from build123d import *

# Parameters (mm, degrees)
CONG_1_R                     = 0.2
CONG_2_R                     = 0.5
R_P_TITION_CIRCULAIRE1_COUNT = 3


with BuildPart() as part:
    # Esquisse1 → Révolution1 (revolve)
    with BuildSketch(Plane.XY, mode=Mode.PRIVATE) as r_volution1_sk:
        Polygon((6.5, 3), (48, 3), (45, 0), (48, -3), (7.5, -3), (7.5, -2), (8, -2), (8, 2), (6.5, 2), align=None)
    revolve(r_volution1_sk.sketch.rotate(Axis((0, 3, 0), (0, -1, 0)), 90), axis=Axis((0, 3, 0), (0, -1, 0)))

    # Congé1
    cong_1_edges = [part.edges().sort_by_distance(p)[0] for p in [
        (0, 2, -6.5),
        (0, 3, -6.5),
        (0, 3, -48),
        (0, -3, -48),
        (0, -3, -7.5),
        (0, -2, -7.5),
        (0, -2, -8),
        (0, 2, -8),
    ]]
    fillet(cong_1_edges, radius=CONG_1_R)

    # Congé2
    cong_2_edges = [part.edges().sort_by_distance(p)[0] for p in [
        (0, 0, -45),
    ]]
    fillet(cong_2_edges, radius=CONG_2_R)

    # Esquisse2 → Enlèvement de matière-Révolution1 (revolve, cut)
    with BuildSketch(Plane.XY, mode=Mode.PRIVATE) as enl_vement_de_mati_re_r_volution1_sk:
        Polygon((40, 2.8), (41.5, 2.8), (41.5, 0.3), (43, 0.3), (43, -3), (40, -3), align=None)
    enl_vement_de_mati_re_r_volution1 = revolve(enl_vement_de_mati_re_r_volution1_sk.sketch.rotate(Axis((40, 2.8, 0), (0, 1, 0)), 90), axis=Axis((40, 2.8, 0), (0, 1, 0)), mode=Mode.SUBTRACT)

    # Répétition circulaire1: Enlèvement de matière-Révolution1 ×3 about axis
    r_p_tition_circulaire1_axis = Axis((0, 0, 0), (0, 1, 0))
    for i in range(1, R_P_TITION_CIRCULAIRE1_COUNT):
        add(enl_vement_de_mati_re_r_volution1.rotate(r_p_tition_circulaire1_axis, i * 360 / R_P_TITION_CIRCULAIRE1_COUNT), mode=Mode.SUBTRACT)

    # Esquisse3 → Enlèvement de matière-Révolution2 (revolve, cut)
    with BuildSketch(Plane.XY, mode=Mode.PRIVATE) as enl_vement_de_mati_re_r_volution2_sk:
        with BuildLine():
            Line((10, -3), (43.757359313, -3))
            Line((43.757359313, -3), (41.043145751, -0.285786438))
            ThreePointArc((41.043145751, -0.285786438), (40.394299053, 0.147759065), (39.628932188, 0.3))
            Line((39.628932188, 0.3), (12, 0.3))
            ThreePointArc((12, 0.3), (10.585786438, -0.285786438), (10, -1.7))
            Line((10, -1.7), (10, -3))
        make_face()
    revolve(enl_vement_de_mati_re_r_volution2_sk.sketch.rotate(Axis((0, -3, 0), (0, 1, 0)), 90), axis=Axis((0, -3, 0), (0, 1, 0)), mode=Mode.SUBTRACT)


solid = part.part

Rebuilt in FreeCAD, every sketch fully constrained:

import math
import FreeCAD as App
import Part
import Sketcher
Q = App.Units.Quantity


def edges_at(feature, points):
    """Names of the edges that pass closest to the given points."""
    edges = feature.Shape.Edges
    near = lambda p: min(range(len(edges)), key=lambda i: edges[i].distToShape(Part.Vertex(*p))[0])
    return sorted({f"Edge{near(p) + 1}" for p in points})

doc = App.newDocument("Part")
body = doc.addObject("PartDesign::Body", "Body")

# Sketch on XY plane
sketch1 = doc.addObject("Sketcher::SketchObject", "Sketch")
body.addObject(sketch1)
sketch1.AttachmentSupport = (doc.XY_Plane, [""])
sketch1.MapMode = "FlatFace"
sketch1.addGeometry(Part.LineSegment(App.Vector(48, 3, 0), App.Vector(6.5, 3, 0)), False)
sketch1.addGeometry(Part.LineSegment(App.Vector(6.5, 3, 0), App.Vector(6.5, 2, 0)), False)
sketch1.addGeometry(Part.LineSegment(App.Vector(6.5, 2, 0), App.Vector(8, 2, 0)), False)
sketch1.addGeometry(Part.LineSegment(App.Vector(8, 2, 0), App.Vector(8, -2, 0)), False)
sketch1.addGeometry(Part.LineSegment(App.Vector(8, -2, 0), App.Vector(7.5, -2, 0)), False)
sketch1.addGeometry(Part.LineSegment(App.Vector(7.5, -2, 0), App.Vector(7.5, -3, 0)), False)
sketch1.addGeometry(Part.LineSegment(App.Vector(7.5, -3, 0), App.Vector(48, -3, 0)), False)
sketch1.addGeometry(Part.LineSegment(App.Vector(48, -3, 0), App.Vector(45, 0, 0)), False)
sketch1.addGeometry(Part.LineSegment(App.Vector(45, 0, 0), App.Vector(48, 3, 0)), False)
sketch1.addConstraint(Sketcher.Constraint("Coincident", 0, 2, 1, 1))
sketch1.addConstraint(Sketcher.Constraint("Coincident", 1, 2, 2, 1))
sketch1.addConstraint(Sketcher.Constraint("Coincident", 2, 2, 3, 1))
sketch1.addConstraint(Sketcher.Constraint("Coincident", 3, 2, 4, 1))
sketch1.addConstraint(Sketcher.Constraint("Coincident", 4, 2, 5, 1))
sketch1.addConstraint(Sketcher.Constraint("Coincident", 5, 2, 6, 1))
sketch1.addConstraint(Sketcher.Constraint("Coincident", 6, 2, 7, 1))
sketch1.addConstraint(Sketcher.Constraint("Coincident", 7, 2, 8, 1))
sketch1.addConstraint(Sketcher.Constraint("Coincident", 8, 2, 0, 1))
sketch1.addConstraint(Sketcher.Constraint("Horizontal", 0))
sketch1.addConstraint(Sketcher.Constraint("Vertical", 1))
sketch1.addConstraint(Sketcher.Constraint("Horizontal", 2))
sketch1.addConstraint(Sketcher.Constraint("Vertical", 3))
sketch1.addConstraint(Sketcher.Constraint("Horizontal", 4))
sketch1.addConstraint(Sketcher.Constraint("Vertical", 5))
sketch1.addConstraint(Sketcher.Constraint("Horizontal", 6))
sketch1.addConstraint(Sketcher.Constraint("Symmetric", 6, 2, 8, 2, -1))
sketch1.addConstraint(Sketcher.Constraint("PointOnObject", 7, 2, -1))
sketch1.addConstraint(Sketcher.Constraint("Perpendicular", 7, 8))
sketch1.addConstraint(Sketcher.Constraint("Equal", 1, 5))
sketch1.addConstraint(Sketcher.Constraint("DistanceY", 1, 2, 1, 1, 1.0))
sketch1.addConstraint(Sketcher.Constraint("DistanceY", 3, 2, 3, 1, 4.0))
sketch1.addConstraint(Sketcher.Constraint("DistanceX", 0, 2, 0, 1, 41.5))
sketch1.addConstraint(Sketcher.Constraint("DistanceX", 2, 1, 2, 2, 1.5))
sketch1.addConstraint(Sketcher.Constraint("DistanceX", 4, 2, 4, 1, 0.5))
sketch1.addConstraint(Sketcher.Constraint("DistanceX", -1, 1, 2, 2, 8.0))
revolution = doc.addObject("PartDesign::Revolution", "Revolution")
body.addObject(revolution)
revolution.Profile = sketch1
revolution.ReferenceAxis = (sketch1, ["V_Axis"])
revolution.Angle = 360
doc.recompute()

fillet = doc.addObject("PartDesign::Fillet", "Fillet")
body.addObject(fillet)
fillet.Base = (revolution, edges_at(revolution, [
    (0, 2, -6.5),
    (0, 3, -6.5),
    (0, 3, -48),
    (0, -3, -48),
    (0, -3, -7.5),
    (0, -2, -7.5),
    (0, -2, -8),
    (0, 2, -8),
]))
fillet.Radius = 0.2
doc.recompute()

fillet2 = doc.addObject("PartDesign::Fillet", "Fillet001")
body.addObject(fillet2)
fillet2.Base = (fillet, edges_at(fillet, [(0, 0, -45)]))
fillet2.Radius = 0.5

# Sketch on XY plane
sketch2 = doc.addObject("Sketcher::SketchObject", "Sketch001")
body.addObject(sketch2)
sketch2.AttachmentSupport = (doc.XY_Plane, [""])
sketch2.MapMode = "FlatFace"
sketch2.addGeometry(Part.LineSegment(App.Vector(41.5, 2.8, 0), App.Vector(40, 2.8, 0)), False)
sketch2.addGeometry(Part.LineSegment(App.Vector(40, 2.8, 0), App.Vector(40, -3, 0)), False)
sketch2.addGeometry(Part.LineSegment(App.Vector(40, -3, 0), App.Vector(43, -3, 0)), False)
sketch2.addGeometry(Part.LineSegment(App.Vector(43, -3, 0), App.Vector(43, 0.3, 0)), False)
sketch2.addGeometry(Part.LineSegment(App.Vector(43, 0.3, 0), App.Vector(41.5, 0.3, 0)), False)
sketch2.addGeometry(Part.LineSegment(App.Vector(41.5, 0.3, 0), App.Vector(41.5, 2.8, 0)), False)
sketch2.addGeometry(Part.LineSegment(App.Vector(40, -3, 0), App.Vector(40, 2.8, 0)), True)  # axis
sketch2.addConstraint(Sketcher.Constraint("Coincident", 0, 2, 1, 1))
sketch2.addConstraint(Sketcher.Constraint("Coincident", 1, 2, 2, 1))
sketch2.addConstraint(Sketcher.Constraint("Coincident", 2, 2, 3, 1))
sketch2.addConstraint(Sketcher.Constraint("Coincident", 3, 2, 4, 1))
sketch2.addConstraint(Sketcher.Constraint("Coincident", 4, 2, 5, 1))
sketch2.addConstraint(Sketcher.Constraint("Coincident", 5, 2, 0, 1))
sketch2.addConstraint(Sketcher.Constraint("Horizontal", 0))
sketch2.addConstraint(Sketcher.Constraint("Vertical", 1))
sketch2.addConstraint(Sketcher.Constraint("Horizontal", 2))
sketch2.addConstraint(Sketcher.Constraint("Vertical", 3))
sketch2.addConstraint(Sketcher.Constraint("Horizontal", 4))
sketch2.addConstraint(Sketcher.Constraint("Vertical", 5))
sketch2.addConstraint(Sketcher.Constraint("Vertical", 6))
sketch2.addConstraint(Sketcher.Constraint("Coincident", 6, 1, 1, 2))
sketch2.addConstraint(Sketcher.Constraint("Horizontal", 5, 2, 6, 2))
sketch2.addConstraint(Sketcher.Constraint("Equal", 0, 4))
sketch2.addConstraint(Sketcher.Constraint("DistanceX", 2, 1, 2, 2, 3.0))
sketch2.addConstraint(Sketcher.Constraint("DistanceY", 1, 2, 1, 1, 5.8))
sketch2.addConstraint(Sketcher.Constraint("DistanceY", 3, 1, 3, 2, 3.3))
sketch2.addConstraint(Sketcher.Constraint("DistanceX", -1, 1, 0, 2, 40.0))
sketch2.addConstraint(Sketcher.Constraint("DistanceY", 1, 2, -1, 1, 3.0))
groove = doc.addObject("PartDesign::Groove", "Groove")
body.addObject(groove)
groove.Profile = sketch2
groove.ReferenceAxis = (sketch2, ["Axis0"])
groove.Angle = 360
doc.recompute()

polarpattern = doc.addObject("PartDesign::PolarPattern", "PolarPattern")
body.addObject(polarpattern)
polarpattern.Originals = [groove]
polarpattern.Axis = (doc.Y_Axis, [""])
polarpattern.Angle = 360
polarpattern.Occurrences = 3
body.Tip = polarpattern

# Sketch on XY plane
sketch3 = doc.addObject("Sketcher::SketchObject", "Sketch002")
body.addObject(sketch3)
sketch3.AttachmentSupport = (doc.XY_Plane, [""])
sketch3.MapMode = "FlatFace"
sketch3.addGeometry(Part.LineSegment(App.Vector(10, -3, 0), App.Vector(43.8, -3, 0)), False)
sketch3.addGeometry(Part.LineSegment(App.Vector(43.8, -3, 0), App.Vector(41, -0.3, 0)), False)
sketch3.addGeometry(Part.ArcOfCircle(Part.Circle(App.Vector(39.6, -1.7, 0), App.Vector(0, 0, 1), 2), math.radians(45), math.radians(90)), False)
sketch3.addGeometry(Part.LineSegment(App.Vector(39.6, 0.3, 0), App.Vector(12, 0.3, 0)), False)
sketch3.addGeometry(Part.ArcOfCircle(Part.Circle(App.Vector(12, -1.7, 0), App.Vector(0, 0, 1), 2), math.radians(90), math.radians(180)), False)
sketch3.addGeometry(Part.LineSegment(App.Vector(10, -1.7, 0), App.Vector(10, -3, 0)), False)
sketch3.addConstraint(Sketcher.Constraint("Coincident", 0, 2, 1, 1))
sketch3.addConstraint(Sketcher.Constraint("Tangent", 1, 2, 2, 1))
sketch3.addConstraint(Sketcher.Constraint("Tangent", 2, 2, 3, 1))
sketch3.addConstraint(Sketcher.Constraint("Tangent", 3, 2, 4, 1))
sketch3.addConstraint(Sketcher.Constraint("Tangent", 4, 2, 5, 1))
sketch3.addConstraint(Sketcher.Constraint("Coincident", 5, 2, 0, 1))
sketch3.addConstraint(Sketcher.Constraint("Horizontal", 0))
sketch3.addConstraint(Sketcher.Constraint("Horizontal", 3))
sketch3.addConstraint(Sketcher.Constraint("Vertical", 5))
sketch3.addConstraint(Sketcher.Constraint("Equal", 2, 4))
sketch3.addConstraint(Sketcher.Constraint("Radius", 2, 2.0))
sketch3.addConstraint(Sketcher.Constraint("Angle", 1, Q("135 deg")))
sketch3.addConstraint(Sketcher.Constraint("DistanceY", 5, 2, 5, 1, 1.3))
sketch3.addConstraint(Sketcher.Constraint("DistanceX", -1, 1, 4, 3, 12.0))
sketch3.addConstraint(Sketcher.Constraint("DistanceY", 0, 2, -1, 1, 3.0))
sketch3.addConstraint(Sketcher.Constraint("DistanceX", 0, 1, 0, 2, 33.757359))
groove2 = doc.addObject("PartDesign::Groove", "Groove001")
body.addObject(groove2)
groove2.Profile = sketch3
groove2.ReferenceAxis = (sketch3, ["V_Axis"])
groove2.Angle = 360

doc.recompute()
